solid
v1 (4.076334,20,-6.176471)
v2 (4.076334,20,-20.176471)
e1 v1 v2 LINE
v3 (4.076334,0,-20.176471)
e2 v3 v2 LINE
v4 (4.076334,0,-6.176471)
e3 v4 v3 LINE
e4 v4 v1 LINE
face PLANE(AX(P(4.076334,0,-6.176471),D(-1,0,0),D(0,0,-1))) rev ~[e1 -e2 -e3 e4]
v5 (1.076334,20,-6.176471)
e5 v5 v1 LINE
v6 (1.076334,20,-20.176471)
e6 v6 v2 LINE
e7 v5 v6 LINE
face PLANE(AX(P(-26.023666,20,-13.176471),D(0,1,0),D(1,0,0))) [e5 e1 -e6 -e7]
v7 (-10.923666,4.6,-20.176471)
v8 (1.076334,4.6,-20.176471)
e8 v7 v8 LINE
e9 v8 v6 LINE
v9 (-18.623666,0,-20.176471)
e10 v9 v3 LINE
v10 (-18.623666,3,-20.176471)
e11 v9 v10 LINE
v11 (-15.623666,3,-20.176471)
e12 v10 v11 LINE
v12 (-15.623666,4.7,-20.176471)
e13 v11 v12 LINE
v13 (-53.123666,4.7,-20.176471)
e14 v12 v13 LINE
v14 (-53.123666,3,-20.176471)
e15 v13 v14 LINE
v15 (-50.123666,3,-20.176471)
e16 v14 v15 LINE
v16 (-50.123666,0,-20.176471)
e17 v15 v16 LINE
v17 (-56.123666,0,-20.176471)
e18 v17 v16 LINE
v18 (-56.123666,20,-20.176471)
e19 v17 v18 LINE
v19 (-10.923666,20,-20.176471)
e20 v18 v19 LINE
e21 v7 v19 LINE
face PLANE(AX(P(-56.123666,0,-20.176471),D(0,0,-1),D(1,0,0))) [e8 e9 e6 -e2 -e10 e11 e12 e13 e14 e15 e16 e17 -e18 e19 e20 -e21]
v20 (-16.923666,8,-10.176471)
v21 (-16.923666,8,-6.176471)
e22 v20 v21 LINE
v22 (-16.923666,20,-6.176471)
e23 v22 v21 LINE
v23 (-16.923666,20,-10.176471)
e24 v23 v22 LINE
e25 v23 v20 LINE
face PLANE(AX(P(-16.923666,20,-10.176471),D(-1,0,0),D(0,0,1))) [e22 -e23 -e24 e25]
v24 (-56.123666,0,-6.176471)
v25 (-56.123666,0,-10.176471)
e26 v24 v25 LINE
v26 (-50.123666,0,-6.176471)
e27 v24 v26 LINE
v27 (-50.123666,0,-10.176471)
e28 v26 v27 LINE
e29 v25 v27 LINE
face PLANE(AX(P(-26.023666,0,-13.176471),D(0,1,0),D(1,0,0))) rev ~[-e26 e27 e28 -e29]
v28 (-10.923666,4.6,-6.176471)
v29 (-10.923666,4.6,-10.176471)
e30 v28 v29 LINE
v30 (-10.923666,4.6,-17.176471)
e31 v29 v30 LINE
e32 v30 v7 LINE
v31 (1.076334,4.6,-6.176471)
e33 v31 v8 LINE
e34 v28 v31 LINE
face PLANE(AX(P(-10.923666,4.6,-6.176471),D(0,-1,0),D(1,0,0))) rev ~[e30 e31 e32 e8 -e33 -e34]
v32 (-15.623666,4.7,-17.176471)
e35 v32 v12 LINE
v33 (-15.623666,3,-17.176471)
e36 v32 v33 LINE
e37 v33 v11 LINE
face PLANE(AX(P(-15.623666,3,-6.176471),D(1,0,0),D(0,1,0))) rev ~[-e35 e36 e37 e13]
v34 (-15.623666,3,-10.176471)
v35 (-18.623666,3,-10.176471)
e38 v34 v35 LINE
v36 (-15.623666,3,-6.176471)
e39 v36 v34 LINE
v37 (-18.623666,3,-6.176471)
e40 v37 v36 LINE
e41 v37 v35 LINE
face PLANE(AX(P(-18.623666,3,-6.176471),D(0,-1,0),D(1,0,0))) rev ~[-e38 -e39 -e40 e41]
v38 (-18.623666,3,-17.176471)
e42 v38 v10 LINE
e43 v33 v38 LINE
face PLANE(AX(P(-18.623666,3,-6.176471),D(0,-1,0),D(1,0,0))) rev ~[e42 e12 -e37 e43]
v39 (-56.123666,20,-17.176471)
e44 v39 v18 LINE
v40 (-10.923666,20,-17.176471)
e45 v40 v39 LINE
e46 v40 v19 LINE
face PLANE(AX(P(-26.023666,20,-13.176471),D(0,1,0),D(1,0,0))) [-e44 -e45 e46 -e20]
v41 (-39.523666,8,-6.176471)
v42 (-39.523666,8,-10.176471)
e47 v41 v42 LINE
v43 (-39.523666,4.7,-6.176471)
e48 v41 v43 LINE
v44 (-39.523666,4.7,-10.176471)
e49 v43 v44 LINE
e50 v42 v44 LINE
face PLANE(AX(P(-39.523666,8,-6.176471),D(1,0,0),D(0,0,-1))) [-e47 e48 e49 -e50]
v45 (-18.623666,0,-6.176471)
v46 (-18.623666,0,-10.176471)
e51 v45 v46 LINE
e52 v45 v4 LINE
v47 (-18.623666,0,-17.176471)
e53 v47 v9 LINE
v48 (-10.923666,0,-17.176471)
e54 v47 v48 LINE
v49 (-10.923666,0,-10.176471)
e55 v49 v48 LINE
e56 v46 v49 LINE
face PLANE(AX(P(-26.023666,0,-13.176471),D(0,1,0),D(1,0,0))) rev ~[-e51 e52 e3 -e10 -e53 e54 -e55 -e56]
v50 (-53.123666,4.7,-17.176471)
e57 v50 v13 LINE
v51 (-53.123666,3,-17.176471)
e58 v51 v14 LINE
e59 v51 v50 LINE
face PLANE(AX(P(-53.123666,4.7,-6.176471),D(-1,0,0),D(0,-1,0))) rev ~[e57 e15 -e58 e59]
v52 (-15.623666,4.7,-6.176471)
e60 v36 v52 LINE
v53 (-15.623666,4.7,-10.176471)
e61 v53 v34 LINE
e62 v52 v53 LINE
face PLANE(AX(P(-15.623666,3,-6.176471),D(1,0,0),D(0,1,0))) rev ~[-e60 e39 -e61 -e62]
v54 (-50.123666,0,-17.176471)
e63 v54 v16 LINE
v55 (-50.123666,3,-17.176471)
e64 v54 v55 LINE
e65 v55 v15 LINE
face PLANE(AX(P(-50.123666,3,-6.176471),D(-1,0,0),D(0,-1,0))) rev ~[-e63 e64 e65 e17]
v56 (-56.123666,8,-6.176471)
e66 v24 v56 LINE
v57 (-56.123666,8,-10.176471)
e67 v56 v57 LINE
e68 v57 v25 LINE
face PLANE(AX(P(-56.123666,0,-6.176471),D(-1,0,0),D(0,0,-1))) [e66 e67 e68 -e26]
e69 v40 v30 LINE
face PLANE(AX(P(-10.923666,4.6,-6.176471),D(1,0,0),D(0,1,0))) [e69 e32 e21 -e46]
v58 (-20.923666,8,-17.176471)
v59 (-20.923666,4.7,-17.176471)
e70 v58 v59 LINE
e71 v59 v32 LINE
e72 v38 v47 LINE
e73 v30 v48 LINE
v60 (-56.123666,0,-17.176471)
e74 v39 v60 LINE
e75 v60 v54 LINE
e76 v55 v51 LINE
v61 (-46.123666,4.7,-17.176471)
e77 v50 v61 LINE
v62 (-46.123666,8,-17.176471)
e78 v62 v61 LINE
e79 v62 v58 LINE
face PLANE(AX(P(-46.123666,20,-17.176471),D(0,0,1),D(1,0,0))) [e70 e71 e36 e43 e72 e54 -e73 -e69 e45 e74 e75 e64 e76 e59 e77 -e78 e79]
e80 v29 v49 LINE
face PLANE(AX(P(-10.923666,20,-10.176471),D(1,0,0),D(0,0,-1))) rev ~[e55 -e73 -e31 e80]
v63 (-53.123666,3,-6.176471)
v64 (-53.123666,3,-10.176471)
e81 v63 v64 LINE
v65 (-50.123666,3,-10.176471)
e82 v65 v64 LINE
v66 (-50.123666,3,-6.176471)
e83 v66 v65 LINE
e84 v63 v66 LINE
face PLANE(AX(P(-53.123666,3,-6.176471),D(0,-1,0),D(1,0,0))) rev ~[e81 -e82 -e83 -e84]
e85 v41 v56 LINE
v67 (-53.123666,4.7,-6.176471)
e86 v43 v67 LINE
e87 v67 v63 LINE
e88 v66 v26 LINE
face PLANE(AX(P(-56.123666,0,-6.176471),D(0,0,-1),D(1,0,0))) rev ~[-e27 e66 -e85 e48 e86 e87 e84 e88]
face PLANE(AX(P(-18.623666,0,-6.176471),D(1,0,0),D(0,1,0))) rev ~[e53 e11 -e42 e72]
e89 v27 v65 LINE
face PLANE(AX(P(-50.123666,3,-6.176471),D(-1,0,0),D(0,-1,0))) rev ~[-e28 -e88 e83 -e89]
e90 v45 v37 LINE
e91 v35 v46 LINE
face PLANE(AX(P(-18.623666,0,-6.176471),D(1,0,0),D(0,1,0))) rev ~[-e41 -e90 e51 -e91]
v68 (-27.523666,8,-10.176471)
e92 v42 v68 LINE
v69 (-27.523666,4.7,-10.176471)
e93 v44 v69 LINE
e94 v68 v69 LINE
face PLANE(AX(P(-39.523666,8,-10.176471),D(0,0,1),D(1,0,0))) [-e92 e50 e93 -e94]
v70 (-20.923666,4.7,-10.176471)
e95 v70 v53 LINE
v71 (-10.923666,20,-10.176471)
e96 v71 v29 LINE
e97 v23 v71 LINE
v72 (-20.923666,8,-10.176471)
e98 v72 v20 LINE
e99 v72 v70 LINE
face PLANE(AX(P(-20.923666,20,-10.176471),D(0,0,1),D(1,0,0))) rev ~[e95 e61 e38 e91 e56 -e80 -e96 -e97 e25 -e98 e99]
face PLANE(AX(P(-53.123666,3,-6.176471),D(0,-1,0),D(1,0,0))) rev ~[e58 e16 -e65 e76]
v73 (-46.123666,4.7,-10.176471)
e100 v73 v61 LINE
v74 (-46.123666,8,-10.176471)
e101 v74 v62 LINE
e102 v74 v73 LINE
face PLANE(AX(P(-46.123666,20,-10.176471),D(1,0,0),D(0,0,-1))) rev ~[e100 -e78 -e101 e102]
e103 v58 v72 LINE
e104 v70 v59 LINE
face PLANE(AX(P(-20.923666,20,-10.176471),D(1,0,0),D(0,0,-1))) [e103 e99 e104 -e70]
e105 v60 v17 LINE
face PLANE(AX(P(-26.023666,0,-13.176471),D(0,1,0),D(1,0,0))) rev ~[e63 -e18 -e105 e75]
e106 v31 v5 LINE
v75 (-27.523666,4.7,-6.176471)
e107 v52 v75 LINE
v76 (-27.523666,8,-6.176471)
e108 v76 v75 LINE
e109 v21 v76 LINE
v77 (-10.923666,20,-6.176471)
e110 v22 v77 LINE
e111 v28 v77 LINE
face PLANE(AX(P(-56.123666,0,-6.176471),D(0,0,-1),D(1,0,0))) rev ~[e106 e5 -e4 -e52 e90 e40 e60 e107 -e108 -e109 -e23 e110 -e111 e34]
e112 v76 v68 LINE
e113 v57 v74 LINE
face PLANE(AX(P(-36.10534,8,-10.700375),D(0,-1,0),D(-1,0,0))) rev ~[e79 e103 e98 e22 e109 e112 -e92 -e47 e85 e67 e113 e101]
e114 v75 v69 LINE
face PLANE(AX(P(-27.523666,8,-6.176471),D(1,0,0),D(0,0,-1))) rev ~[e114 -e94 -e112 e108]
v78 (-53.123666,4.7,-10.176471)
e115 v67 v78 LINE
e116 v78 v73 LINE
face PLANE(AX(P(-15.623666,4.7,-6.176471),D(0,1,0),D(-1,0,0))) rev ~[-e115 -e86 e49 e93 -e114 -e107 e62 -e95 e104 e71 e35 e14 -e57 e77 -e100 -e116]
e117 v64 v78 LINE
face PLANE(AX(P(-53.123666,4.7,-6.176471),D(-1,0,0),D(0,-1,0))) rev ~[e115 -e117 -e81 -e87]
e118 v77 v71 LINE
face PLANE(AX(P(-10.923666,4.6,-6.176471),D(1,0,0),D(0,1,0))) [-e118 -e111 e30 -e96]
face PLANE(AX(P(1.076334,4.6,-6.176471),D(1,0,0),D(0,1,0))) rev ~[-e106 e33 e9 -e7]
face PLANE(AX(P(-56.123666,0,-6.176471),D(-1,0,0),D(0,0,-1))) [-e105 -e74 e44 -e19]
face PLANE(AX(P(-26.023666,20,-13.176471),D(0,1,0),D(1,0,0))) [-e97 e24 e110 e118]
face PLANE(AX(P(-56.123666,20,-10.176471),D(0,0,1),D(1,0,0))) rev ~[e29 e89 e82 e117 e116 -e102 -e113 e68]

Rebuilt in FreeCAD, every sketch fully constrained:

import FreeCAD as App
import Part
import Sketcher
Q = App.Units.Quantity


def add_polygon(sketch, points):
    """Adds a closed chain of lines whose ends are joined by coincident constraints."""
    first, n = sketch.GeometryCount, len(points)
    for a, b in zip(points, points[1:] + points[:1]):
        sketch.addGeometry(Part.LineSegment(App.Vector(*a, 0), App.Vector(*b, 0)), False)
    for i in range(n):
        sketch.addConstraint(Sketcher.Constraint("Coincident", first + i, 2, first + (i + 1) % n, 1))

doc = App.newDocument("Part")
body = doc.addObject("PartDesign::Body", "Body")

# Sketch on XZ plane
sketch1 = body.newObject("Sketcher::SketchObject", "Sketch")
sketch1.AttachmentSupport = (doc.getObject("XZ_Plane"), [""])
sketch1.MapMode = "FlatFace"
add_polygon(sketch1, [(-56, -20), (-56, -6), (4, -6), (4, -20)])  # lines 0-3
sketch1.addConstraint([
    Sketcher.Constraint("Vertical", 0),
    Sketcher.Constraint("Horizontal", 1),
    Sketcher.Constraint("Vertical", 2),
    Sketcher.Constraint("Horizontal", 3),
    Sketcher.Constraint("DistanceY", 0, 1, 0, 2, Q("14 mm")),
    Sketcher.Constraint("DistanceX", 1, 1, 1, 2, Q("60.2 mm")),
    Sketcher.Constraint("DistanceY", 0, 2, -1, 1, Q("6.176471 mm")),
    Sketcher.Constraint("DistanceX", 0, 2, -1, 1, Q("56.123666 mm")),
])
pad1 = body.newObject("PartDesign::Pad", "Pad")
pad1.Profile = sketch1
pad1.Length = 20
pad1.Reversed = True

# Sketch on XY plane
sketch2 = body.newObject("Sketcher::SketchObject", "Sketch001")
sketch2.AttachmentSupport = (doc.getObject("XY_Plane"), [""])
sketch2.MapMode = "FlatFace"
sketch2.AttachmentOffset = App.Placement(App.Vector(0, 0, -6.176471), App.Rotation())
add_polygon(sketch2, [(-50.1, 0), (-18.6, 0), (-18.6, 3), (-15.6, 3), (-15.6, 4.7), (-53.1, 4.7), (-53.1, 3), (-50.1, 3)])  # lines 0-7
add_polygon(sketch2, [(-10.9, 20), (-10.9, 4.6), (1.1, 4.6), (1.1, 20)])  # lines 8-11
sketch2.addConstraint([
    Sketcher.Constraint("Horizontal", 0),
    Sketcher.Constraint("Vertical", 1),
    Sketcher.Constraint("Horizontal", 2),
    Sketcher.Constraint("Vertical", 3),
    Sketcher.Constraint("Horizontal", 4),
    Sketcher.Constraint("Vertical", 5),
    Sketcher.Constraint("Horizontal", 6),
    Sketcher.Constraint("Vertical", 7),
    Sketcher.Constraint("Vertical", 8),
    Sketcher.Constraint("Horizontal", 9),
    Sketcher.Constraint("Vertical", 10),
    Sketcher.Constraint("Horizontal", 11),
    Sketcher.Constraint("PointOnObject", 0, 2, -1),
    Sketcher.Constraint("Horizontal", 2, 2, 5, 2),
    Sketcher.Constraint("Equal", 2, 6),
    Sketcher.Constraint("Equal", 6, 1),
    Sketcher.Constraint("DistanceX", 2, 1, 2, 2, Q("3 mm")),
    Sketcher.Constraint("DistanceX", 9, 1, 9, 2, Q("12 mm")),
    Sketcher.Constraint("DistanceX", 0, 1, 0, 2, Q("31.5 mm")),
    Sketcher.Constraint("DistanceY", 3, 1, 3, 2, Q("1.7 mm")),
    Sketcher.Constraint("DistanceY", 8, 2, 8, 1, Q("15.4 mm")),
    Sketcher.Constraint("DistanceY", -1, 1, 10, 2, Q("20 mm")),
    Sketcher.Constraint("DistanceX", 3, 2, 8, 2, Q("4.7 mm")),
    Sketcher.Constraint("DistanceX", 0, 2, -1, 1, Q("18.623666 mm")),
])
pocket1 = body.newObject("PartDesign::Pocket", "Pocket")
pocket1.Profile = sketch2
pocket1.Length = 14

# Sketch on XZ plane
sketch3 = body.newObject("Sketcher::SketchObject", "Sketch002")
sketch3.AttachmentSupport = (doc.getObject("XZ_Plane"), [""])
sketch3.MapMode = "FlatFace"
sketch3.AttachmentOffset = App.Placement(App.Vector(0, 0, -20), App.Rotation())
add_polygon(sketch3, [(-56, -17), (-56, -10), (-46, -10), (-46, -17)])  # lines 0-3
add_polygon(sketch3, [(-21, -17), (-21, -10), (-11, -10), (-11, -17)])  # lines 4-7
sketch3.addConstraint([
    Sketcher.Constraint("Vertical", 0),
    Sketcher.Constraint("Horizontal", 1),
    Sketcher.Constraint("Vertical", 2),
    Sketcher.Constraint("Horizontal", 3),
    Sketcher.Constraint("Vertical", 4),
    Sketcher.Constraint("Horizontal", 5),
    Sketcher.Constraint("Vertical", 6),
    Sketcher.Constraint("Horizontal", 7),
    Sketcher.Constraint("Horizontal", 1, 2, 4, 2),
    Sketcher.Constraint("Horizontal", 3, 2, 6, 2),
    Sketcher.Constraint("Equal", 3, 5),
    Sketcher.Constraint("DistanceX", 1, 1, 1, 2, Q("10 mm")),
    Sketcher.Constraint("DistanceY", 0, 1, 0, 2, Q("7 mm")),
    Sketcher.Constraint("DistanceX", 1, 2, 4, 2, Q("25.2 mm")),
    Sketcher.Constraint("DistanceY", 0, 2, -1, 1, Q("10.176471 mm")),
    Sketcher.Constraint("DistanceX", 0, 2, -1, 1, Q("56.123666 mm")),
])
pocket2 = body.newObject("PartDesign::Pocket", "Pocket001")
pocket2.Profile = sketch3
pocket2.Length = 20
pocket2.Reversed = True

# Sketch on XZ plane
sketch4 = body.newObject("Sketcher::SketchObject", "Sketch003")
sketch4.AttachmentSupport = (doc.getObject("XZ_Plane"), [""])
sketch4.MapMode = "FlatFace"
sketch4.AttachmentOffset = App.Placement(App.Vector(0, 0, -20), App.Rotation())
add_polygon(sketch4, [(-20.9, -17.2), (-46.1, -17.2), (-46.1, -10.2), (-56.1, -10.2), (-56.1, -6.2), (-16.9, -6.2), (-16.9, -10.2), (-20.9, -10.2)])  # lines 0-7
sketch4.addConstraint([
    Sketcher.Constraint("Horizontal", 0),
    Sketcher.Constraint("Vertical", 1),
    Sketcher.Constraint("Horizontal", 2),
    Sketcher.Constraint("Vertical", 3),
    Sketcher.Constraint("Horizontal", 4),
    Sketcher.Constraint("Vertical", 5),
    Sketcher.Constraint("Horizontal", 6),
    Sketcher.Constraint("Vertical", 7),
    Sketcher.Constraint("Horizontal", 2, 2, 5, 2),
    Sketcher.Constraint("Equal", 6, 3),
    Sketcher.Constraint("DistanceX", 2, 2, 2, 1, Q("10 mm")),
    Sketcher.Constraint("DistanceX", 6, 2, 6, 1, Q("4 mm")),
    Sketcher.Constraint("DistanceY", 1, 1, 1, 2, Q("7 mm")),
    Sketcher.Constraint("DistanceX", 0, 2, 0, 1, Q("25.2 mm")),
    Sketcher.Constraint("DistanceY", 0, 2, -1, 1, Q("17.176471 mm")),
    Sketcher.Constraint("DistanceX", 0, 2, -1, 1, Q("46.123666 mm")),
])
pocket3 = body.newObject("PartDesign::Pocket", "Pocket002")
pocket3.Profile = sketch4
pocket3.Length = 12
pocket3.Reversed = True

# Sketch on XZ plane
sketch5 = body.newObject("Sketcher::SketchObject", "Sketch004")
sketch5.AttachmentSupport = (doc.getObject("XZ_Plane"), [""])
sketch5.MapMode = "FlatFace"
sketch5.AttachmentOffset = App.Placement(App.Vector(0, 0, -8), App.Rotation())
add_polygon(sketch5, [(-39.5, -10.2), (-39.5, -6.2), (-27.5, -6.2), (-27.5, -10.2)])  # lines 0-3
sketch5.addConstraint([
    Sketcher.Constraint("Vertical", 0),
    Sketcher.Constraint("Horizontal", 1),
    Sketcher.Constraint("Vertical", 2),
    Sketcher.Constraint("Horizontal", 3),
    Sketcher.Constraint("DistanceX", 1, 1, 1, 2, Q("12 mm")),
    Sketcher.Constraint("DistanceY", 0, 1, 0, 2, Q("4 mm")),
    Sketcher.Constraint("DistanceY", 0, 2, -1, 1, Q("6.176471 mm")),
    Sketcher.Constraint("DistanceX", 0, 2, -1, 1, Q("39.523666 mm")),
])
pocket4 = body.newObject("PartDesign::Pocket", "Pocket003")
pocket4.Profile = sketch5
pocket4.Length = 3.3
pocket4.Reversed = True

doc.recompute()
